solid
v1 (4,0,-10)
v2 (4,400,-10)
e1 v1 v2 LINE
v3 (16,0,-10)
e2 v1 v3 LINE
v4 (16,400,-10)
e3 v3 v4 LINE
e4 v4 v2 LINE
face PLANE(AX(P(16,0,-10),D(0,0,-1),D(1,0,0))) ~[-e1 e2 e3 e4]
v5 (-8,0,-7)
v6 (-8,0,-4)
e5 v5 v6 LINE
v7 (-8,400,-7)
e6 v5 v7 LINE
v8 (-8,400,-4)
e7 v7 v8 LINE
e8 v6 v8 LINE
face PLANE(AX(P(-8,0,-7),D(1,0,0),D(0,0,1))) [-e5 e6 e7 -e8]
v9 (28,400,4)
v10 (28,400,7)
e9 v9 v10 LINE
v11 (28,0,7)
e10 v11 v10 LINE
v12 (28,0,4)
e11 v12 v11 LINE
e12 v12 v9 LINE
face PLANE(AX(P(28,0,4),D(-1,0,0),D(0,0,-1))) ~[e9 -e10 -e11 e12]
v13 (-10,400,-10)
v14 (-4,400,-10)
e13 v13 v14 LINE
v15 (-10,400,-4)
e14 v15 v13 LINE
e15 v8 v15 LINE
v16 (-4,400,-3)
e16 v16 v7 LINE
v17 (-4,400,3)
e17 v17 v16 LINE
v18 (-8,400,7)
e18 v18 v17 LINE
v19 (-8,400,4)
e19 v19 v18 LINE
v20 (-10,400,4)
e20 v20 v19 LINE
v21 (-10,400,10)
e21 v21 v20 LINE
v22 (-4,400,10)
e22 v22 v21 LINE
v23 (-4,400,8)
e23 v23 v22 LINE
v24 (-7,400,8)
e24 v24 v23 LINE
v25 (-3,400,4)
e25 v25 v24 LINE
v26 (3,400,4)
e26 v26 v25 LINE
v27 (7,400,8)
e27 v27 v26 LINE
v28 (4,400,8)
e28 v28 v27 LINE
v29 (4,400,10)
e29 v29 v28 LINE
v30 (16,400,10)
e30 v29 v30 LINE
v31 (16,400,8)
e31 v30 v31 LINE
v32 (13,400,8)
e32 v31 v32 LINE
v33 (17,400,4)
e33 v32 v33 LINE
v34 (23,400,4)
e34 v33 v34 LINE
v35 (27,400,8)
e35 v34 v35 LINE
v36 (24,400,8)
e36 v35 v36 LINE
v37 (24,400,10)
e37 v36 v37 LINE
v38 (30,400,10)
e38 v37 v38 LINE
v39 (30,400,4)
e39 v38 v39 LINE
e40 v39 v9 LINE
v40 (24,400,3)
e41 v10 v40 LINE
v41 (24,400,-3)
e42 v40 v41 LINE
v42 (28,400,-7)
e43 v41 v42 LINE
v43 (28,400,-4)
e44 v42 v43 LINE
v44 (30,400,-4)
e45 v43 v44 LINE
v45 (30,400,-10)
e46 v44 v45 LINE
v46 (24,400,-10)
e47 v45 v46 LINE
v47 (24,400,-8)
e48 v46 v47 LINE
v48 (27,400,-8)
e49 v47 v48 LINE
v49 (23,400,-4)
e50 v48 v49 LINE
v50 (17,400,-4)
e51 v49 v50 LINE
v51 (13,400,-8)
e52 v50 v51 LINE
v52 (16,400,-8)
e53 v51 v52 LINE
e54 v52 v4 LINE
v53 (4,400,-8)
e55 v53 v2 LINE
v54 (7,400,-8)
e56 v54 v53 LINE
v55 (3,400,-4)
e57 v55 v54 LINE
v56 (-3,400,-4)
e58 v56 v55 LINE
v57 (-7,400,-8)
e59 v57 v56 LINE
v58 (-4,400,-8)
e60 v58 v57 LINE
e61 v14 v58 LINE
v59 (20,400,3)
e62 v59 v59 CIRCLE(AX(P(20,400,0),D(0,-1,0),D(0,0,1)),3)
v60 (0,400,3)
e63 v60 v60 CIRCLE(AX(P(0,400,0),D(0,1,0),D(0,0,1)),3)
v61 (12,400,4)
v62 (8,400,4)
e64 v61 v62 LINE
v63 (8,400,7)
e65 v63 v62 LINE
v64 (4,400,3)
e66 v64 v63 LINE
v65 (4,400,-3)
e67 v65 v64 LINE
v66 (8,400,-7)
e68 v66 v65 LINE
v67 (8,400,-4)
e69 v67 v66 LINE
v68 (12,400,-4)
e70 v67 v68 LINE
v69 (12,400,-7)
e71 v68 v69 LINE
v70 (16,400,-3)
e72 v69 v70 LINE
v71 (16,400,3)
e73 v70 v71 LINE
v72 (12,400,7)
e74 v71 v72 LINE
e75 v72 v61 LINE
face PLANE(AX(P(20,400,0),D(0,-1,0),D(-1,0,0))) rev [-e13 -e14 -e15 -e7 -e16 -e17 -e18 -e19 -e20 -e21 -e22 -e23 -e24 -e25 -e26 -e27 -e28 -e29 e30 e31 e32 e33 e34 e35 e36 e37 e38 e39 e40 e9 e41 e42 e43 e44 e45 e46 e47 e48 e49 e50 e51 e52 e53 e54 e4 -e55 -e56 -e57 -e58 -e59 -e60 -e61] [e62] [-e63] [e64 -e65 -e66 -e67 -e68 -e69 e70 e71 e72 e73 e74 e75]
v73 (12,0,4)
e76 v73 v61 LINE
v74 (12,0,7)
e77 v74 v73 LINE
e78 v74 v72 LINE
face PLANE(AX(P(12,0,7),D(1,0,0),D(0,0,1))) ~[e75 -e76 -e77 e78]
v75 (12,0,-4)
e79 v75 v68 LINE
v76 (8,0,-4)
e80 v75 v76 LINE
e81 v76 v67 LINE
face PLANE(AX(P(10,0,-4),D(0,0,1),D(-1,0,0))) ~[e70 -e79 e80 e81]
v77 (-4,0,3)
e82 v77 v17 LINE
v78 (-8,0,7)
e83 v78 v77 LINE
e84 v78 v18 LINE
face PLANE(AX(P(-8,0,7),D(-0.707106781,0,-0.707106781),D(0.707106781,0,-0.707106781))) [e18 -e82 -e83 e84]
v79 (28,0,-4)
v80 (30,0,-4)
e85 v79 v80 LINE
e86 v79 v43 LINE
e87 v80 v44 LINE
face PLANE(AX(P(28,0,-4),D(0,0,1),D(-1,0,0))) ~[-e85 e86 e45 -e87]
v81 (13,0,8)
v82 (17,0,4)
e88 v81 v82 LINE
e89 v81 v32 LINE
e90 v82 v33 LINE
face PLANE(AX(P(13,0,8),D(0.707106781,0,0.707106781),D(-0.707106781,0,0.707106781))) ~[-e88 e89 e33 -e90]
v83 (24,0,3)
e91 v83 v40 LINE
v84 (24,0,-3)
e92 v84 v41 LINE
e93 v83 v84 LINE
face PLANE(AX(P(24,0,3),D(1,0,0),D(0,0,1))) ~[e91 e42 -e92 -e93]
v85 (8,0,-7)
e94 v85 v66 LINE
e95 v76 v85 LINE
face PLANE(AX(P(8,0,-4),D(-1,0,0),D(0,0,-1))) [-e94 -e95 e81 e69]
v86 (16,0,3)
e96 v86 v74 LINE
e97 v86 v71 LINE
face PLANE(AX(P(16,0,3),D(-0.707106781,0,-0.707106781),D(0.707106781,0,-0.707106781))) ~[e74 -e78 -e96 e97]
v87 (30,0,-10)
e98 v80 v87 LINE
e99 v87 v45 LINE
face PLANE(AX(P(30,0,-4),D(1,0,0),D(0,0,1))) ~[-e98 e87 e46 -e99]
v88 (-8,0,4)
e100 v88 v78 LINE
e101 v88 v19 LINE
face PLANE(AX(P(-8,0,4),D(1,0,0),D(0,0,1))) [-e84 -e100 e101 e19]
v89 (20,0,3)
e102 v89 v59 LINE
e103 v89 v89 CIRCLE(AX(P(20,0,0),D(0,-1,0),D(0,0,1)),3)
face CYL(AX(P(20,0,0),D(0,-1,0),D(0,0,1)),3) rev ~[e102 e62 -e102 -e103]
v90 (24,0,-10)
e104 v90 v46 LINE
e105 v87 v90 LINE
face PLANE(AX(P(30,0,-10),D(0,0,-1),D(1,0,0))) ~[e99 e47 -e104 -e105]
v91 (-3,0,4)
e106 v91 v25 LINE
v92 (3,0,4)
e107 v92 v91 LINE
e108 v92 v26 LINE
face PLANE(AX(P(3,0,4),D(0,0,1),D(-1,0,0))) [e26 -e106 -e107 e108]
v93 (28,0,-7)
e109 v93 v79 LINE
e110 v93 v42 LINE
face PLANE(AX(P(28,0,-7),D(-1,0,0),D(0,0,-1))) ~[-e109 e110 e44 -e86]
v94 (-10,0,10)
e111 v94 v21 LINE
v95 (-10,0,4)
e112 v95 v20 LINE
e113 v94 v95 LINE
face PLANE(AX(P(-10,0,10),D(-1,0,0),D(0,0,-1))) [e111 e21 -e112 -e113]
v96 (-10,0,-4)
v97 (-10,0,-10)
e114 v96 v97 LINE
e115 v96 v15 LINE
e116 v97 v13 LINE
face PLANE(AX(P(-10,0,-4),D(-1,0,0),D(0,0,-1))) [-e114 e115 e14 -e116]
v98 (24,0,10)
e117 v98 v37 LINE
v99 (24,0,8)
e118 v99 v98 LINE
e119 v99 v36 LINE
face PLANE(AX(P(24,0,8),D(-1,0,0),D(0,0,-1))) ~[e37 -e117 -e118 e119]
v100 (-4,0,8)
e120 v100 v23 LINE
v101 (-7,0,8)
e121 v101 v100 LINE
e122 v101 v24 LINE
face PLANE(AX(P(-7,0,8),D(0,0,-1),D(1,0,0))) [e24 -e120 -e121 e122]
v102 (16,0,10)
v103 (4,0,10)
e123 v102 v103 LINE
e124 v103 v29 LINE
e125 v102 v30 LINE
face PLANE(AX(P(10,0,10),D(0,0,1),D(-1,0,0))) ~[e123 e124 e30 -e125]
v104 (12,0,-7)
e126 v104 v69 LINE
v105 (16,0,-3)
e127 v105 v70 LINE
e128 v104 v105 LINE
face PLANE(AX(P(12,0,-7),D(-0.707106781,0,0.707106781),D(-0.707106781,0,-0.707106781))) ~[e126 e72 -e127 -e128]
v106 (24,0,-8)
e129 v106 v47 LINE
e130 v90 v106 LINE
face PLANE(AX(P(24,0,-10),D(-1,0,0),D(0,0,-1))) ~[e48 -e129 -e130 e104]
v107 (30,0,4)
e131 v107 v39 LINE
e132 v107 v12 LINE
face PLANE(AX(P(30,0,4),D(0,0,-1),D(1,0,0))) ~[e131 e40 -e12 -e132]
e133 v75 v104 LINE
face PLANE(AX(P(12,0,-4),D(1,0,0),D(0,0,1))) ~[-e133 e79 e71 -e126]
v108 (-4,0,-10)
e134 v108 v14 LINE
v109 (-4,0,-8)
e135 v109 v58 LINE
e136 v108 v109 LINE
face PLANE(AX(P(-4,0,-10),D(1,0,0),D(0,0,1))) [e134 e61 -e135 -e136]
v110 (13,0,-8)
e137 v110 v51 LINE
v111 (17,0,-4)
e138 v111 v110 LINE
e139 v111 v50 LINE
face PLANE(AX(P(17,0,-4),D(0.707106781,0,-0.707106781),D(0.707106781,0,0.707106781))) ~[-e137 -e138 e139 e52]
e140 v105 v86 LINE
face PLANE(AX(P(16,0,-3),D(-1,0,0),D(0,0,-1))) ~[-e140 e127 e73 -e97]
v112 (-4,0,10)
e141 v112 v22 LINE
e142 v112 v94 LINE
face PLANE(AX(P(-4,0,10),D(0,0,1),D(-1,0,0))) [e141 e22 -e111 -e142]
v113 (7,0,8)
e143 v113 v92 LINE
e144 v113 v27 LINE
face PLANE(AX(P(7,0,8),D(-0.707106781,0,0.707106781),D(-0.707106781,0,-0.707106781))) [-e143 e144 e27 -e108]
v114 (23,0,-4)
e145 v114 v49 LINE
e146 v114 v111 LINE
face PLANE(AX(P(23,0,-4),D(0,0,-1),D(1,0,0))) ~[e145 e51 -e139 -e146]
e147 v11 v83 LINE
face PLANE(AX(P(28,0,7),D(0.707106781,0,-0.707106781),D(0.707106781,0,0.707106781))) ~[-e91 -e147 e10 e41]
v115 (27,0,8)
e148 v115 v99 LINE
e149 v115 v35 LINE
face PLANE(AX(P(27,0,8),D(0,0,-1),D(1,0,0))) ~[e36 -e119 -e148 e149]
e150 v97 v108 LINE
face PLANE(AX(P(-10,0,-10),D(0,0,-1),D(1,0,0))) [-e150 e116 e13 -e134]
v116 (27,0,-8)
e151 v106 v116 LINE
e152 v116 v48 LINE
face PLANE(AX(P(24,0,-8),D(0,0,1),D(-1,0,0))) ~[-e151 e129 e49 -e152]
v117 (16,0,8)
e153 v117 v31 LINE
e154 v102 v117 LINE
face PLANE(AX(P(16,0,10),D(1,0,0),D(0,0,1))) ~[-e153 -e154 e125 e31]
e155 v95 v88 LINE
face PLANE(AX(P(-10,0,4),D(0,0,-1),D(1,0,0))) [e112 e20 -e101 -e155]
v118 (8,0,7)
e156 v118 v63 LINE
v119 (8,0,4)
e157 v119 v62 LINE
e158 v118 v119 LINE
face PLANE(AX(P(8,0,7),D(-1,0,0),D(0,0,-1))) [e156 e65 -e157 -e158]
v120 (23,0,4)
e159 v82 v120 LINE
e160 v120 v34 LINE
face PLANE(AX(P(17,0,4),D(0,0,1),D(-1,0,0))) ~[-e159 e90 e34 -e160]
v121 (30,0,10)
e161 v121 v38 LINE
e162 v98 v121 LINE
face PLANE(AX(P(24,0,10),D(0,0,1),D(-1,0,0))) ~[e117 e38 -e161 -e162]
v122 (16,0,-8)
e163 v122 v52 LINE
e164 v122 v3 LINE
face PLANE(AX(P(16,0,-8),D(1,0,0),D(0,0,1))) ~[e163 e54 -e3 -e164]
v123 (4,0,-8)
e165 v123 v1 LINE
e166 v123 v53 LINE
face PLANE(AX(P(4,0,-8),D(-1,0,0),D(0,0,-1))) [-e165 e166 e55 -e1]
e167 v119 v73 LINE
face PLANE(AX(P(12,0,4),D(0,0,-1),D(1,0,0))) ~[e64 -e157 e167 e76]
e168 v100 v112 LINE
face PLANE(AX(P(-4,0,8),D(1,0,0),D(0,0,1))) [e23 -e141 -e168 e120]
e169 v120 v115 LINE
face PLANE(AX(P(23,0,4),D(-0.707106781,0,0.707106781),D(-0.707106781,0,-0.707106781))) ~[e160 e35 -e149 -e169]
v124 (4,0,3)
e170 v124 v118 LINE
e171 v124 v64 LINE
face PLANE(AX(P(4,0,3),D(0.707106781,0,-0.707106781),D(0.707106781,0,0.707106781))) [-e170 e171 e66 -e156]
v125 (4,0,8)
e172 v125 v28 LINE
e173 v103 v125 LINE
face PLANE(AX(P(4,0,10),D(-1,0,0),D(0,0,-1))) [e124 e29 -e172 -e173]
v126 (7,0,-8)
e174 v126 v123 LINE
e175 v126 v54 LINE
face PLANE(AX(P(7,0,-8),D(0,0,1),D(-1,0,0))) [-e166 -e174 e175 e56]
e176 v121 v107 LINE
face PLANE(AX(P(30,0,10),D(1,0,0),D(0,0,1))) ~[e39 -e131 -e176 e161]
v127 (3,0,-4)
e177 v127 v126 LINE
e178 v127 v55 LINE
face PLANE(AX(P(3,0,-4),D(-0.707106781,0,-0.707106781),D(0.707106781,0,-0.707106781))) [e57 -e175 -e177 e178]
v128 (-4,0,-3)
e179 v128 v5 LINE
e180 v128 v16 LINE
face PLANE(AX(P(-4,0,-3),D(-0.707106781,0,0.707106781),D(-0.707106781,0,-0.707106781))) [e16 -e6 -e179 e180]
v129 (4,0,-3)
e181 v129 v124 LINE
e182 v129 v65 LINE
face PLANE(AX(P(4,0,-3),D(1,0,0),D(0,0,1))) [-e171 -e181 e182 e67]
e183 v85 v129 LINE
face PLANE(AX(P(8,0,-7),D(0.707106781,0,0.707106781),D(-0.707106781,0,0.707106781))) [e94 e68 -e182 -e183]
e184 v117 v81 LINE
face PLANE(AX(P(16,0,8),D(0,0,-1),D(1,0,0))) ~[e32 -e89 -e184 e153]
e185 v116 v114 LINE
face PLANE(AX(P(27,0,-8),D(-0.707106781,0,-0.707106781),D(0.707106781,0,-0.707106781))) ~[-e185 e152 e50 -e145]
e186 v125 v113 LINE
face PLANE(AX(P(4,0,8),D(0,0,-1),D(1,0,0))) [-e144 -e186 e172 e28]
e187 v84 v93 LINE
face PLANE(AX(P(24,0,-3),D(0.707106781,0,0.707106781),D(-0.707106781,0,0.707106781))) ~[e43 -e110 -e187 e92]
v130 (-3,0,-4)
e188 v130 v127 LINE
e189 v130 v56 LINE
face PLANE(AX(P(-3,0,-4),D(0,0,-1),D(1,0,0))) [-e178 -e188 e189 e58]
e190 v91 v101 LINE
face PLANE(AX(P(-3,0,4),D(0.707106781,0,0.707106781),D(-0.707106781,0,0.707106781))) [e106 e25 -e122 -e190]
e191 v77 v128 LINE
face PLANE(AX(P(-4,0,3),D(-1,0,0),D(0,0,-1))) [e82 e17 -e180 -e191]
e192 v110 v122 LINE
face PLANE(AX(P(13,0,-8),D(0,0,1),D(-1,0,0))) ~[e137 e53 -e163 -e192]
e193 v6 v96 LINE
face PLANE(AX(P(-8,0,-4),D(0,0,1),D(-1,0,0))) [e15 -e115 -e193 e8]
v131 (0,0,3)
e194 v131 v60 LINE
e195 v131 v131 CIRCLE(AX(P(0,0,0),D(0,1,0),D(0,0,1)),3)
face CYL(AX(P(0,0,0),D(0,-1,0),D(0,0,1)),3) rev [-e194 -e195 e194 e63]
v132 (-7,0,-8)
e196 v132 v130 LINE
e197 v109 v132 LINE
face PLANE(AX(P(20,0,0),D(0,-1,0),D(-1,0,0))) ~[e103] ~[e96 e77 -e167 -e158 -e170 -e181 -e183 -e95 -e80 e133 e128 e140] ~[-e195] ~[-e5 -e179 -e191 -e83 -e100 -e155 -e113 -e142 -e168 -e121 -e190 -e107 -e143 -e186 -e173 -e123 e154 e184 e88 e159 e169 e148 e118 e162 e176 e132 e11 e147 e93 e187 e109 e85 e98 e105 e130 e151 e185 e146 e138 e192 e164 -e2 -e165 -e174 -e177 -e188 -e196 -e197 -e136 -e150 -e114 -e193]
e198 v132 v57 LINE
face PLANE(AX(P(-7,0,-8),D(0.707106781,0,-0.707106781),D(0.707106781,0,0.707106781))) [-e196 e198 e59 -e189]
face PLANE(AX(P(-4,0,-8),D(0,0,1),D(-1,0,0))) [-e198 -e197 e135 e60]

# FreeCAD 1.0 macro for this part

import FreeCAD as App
import Part
import Sketcher
from FreeCAD import Vector

doc = App.newDocument("Part")
body = doc.addObject("PartDesign::Body", "Body")

sketch1 = body.newObject("Sketcher::SketchObject", "Sketch")
sketch1.AttachmentSupport = (doc.getObject("XZ_Plane"), [""])
sketch1.MapMode = "FlatFace"
sketch1.addGeometry(Part.LineSegment(Vector(-4, -8, 0), Vector(-4, -10, 0)), False)
sketch1.addGeometry(Part.LineSegment(Vector(-4, -10, 0), Vector(-10, -10, 0)), False)
sketch1.addGeometry(Part.LineSegment(Vector(-10, -10, 0), Vector(-10, -4, 0)), False)
sketch1.addGeometry(Part.LineSegment(Vector(-10, -4, 0), Vector(-8, -4, 0)), False)
sketch1.addGeometry(Part.LineSegment(Vector(-8, -4, 0), Vector(-8, -7, 0)), False)
sketch1.addGeometry(Part.LineSegment(Vector(-8, -7, 0), Vector(-4, -3, 0)), False)
sketch1.addGeometry(Part.LineSegment(Vector(-4, -3, 0), Vector(-4, 3, 0)), False)
sketch1.addGeometry(Part.LineSegment(Vector(-4, 3, 0), Vector(-8, 7, 0)), False)
sketch1.addGeometry(Part.LineSegment(Vector(-8, 7, 0), Vector(-8, 4, 0)), False)
sketch1.addGeometry(Part.LineSegment(Vector(-8, 4, 0), Vector(-10, 4, 0)), False)
sketch1.addGeometry(Part.LineSegment(Vector(-10, 4, 0), Vector(-10, 10, 0)), False)
sketch1.addGeometry(Part.LineSegment(Vector(-10, 10, 0), Vector(-4, 10, 0)), False)
sketch1.addGeometry(Part.LineSegment(Vector(-4, 10, 0), Vector(-4, 8, 0)), False)
sketch1.addGeometry(Part.LineSegment(Vector(-4, 8, 0), Vector(-7, 8, 0)), False)
sketch1.addGeometry(Part.LineSegment(Vector(-7, 8, 0), Vector(-3, 4, 0)), False)
sketch1.addGeometry(Part.LineSegment(Vector(-3, 4, 0), Vector(3, 4, 0)), False)
sketch1.addGeometry(Part.LineSegment(Vector(3, 4, 0), Vector(7, 8, 0)), False)
sketch1.addGeometry(Part.LineSegment(Vector(7, 8, 0), Vector(4, 8, 0)), False)
sketch1.addGeometry(Part.LineSegment(Vector(4, 8, 0), Vector(4, 10, 0)), False)
sketch1.addGeometry(Part.LineSegment(Vector(4, 10, 0), Vector(10, 10, 0)), False)
sketch1.addGeometry(Part.LineSegment(Vector(10, 10, 0), Vector(10, 4, 0)), False)
sketch1.addGeometry(Part.LineSegment(Vector(10, 4, 0), Vector(8, 4, 0)), False)
sketch1.addGeometry(Part.LineSegment(Vector(8, 4, 0), Vector(8, 7, 0)), False)
sketch1.addGeometry(Part.LineSegment(Vector(8, 7, 0), Vector(4, 3, 0)), False)
sketch1.addGeometry(Part.LineSegment(Vector(4, 3, 0), Vector(4, -3, 0)), False)
sketch1.addGeometry(Part.LineSegment(Vector(4, -3, 0), Vector(8, -7, 0)), False)
sketch1.addGeometry(Part.LineSegment(Vector(8, -7, 0), Vector(8, -4, 0)), False)
sketch1.addGeometry(Part.LineSegment(Vector(8, -4, 0), Vector(10, -4, 0)), False)
sketch1.addGeometry(Part.LineSegment(Vector(10, -4, 0), Vector(10, -10, 0)), False)
sketch1.addGeometry(Part.LineSegment(Vector(10, -10, 0), Vector(4, -10, 0)), False)
sketch1.addGeometry(Part.LineSegment(Vector(4, -10, 0), Vector(4, -8, 0)), False)
sketch1.addGeometry(Part.LineSegment(Vector(4, -8, 0), Vector(7, -8, 0)), False)
sketch1.addGeometry(Part.LineSegment(Vector(7, -8, 0), Vector(3, -4, 0)), False)
sketch1.addGeometry(Part.LineSegment(Vector(3, -4, 0), Vector(-3, -4, 0)), False)
sketch1.addGeometry(Part.LineSegment(Vector(-3, -4, 0), Vector(-7, -8, 0)), False)
sketch1.addGeometry(Part.LineSegment(Vector(-7, -8, 0), Vector(-4, -8, 0)), False)
sketch1.addGeometry(Part.Circle(Vector(0, 0, 0), Vector(0, 0, 1), 3), False)
sketch1.addConstraint(Sketcher.Constraint("Coincident", 0, 2, 1, 1))
sketch1.addConstraint(Sketcher.Constraint("Coincident", 1, 2, 2, 1))
sketch1.addConstraint(Sketcher.Constraint("Coincident", 2, 2, 3, 1))
sketch1.addConstraint(Sketcher.Constraint("Coincident", 3, 2, 4, 1))
sketch1.addConstraint(Sketcher.Constraint("Coincident", 4, 2, 5, 1))
sketch1.addConstraint(Sketcher.Constraint("Coincident", 5, 2, 6, 1))
sketch1.addConstraint(Sketcher.Constraint("Coincident", 6, 2, 7, 1))
sketch1.addConstraint(Sketcher.Constraint("Coincident", 7, 2, 8, 1))
sketch1.addConstraint(Sketcher.Constraint("Coincident", 8, 2, 9, 1))
sketch1.addConstraint(Sketcher.Constraint("Coincident", 9, 2, 10, 1))
sketch1.addConstraint(Sketcher.Constraint("Coincident", 10, 2, 11, 1))
sketch1.addConstraint(Sketcher.Constraint("Coincident", 11, 2, 12, 1))
sketch1.addConstraint(Sketcher.Constraint("Coincident", 12, 2, 13, 1))
sketch1.addConstraint(Sketcher.Constraint("Coincident", 13, 2, 14, 1))
sketch1.addConstraint(Sketcher.Constraint("Coincident", 14, 2, 15, 1))
sketch1.addConstraint(Sketcher.Constraint("Coincident", 15, 2, 16, 1))
sketch1.addConstraint(Sketcher.Constraint("Coincident", 16, 2, 17, 1))
sketch1.addConstraint(Sketcher.Constraint("Coincident", 17, 2, 18, 1))
sketch1.addConstraint(Sketcher.Constraint("Coincident", 18, 2, 19, 1))
sketch1.addConstraint(Sketcher.Constraint("Coincident", 19, 2, 20, 1))
sketch1.addConstraint(Sketcher.Constraint("Coincident", 20, 2, 21, 1))
sketch1.addConstraint(Sketcher.Constraint("Coincident", 21, 2, 22, 1))
sketch1.addConstraint(Sketcher.Constraint("Coincident", 22, 2, 23, 1))
sketch1.addConstraint(Sketcher.Constraint("Coincident", 23, 2, 24, 1))
sketch1.addConstraint(Sketcher.Constraint("Coincident", 24, 2, 25, 1))
sketch1.addConstraint(Sketcher.Constraint("Coincident", 25, 2, 26, 1))
sketch1.addConstraint(Sketcher.Constraint("Coincident", 26, 2, 27, 1))
sketch1.addConstraint(Sketcher.Constraint("Coincident", 27, 2, 28, 1))
sketch1.addConstraint(Sketcher.Constraint("Coincident", 28, 2, 29, 1))
sketch1.addConstraint(Sketcher.Constraint("Coincident", 29, 2, 30, 1))
sketch1.addConstraint(Sketcher.Constraint("Coincident", 30, 2, 31, 1))
sketch1.addConstraint(Sketcher.Constraint("Coincident", 31, 2, 32, 1))
sketch1.addConstraint(Sketcher.Constraint("Coincident", 32, 2, 33, 1))
sketch1.addConstraint(Sketcher.Constraint("Coincident", 33, 2, 34, 1))
sketch1.addConstraint(Sketcher.Constraint("Coincident", 34, 2, 35, 1))
sketch1.addConstraint(Sketcher.Constraint("Coincident", 35, 2, 0, 1))
sketch1.addConstraint(Sketcher.Constraint("Vertical", 0))
sketch1.addConstraint(Sketcher.Constraint("Horizontal", 1))
sketch1.addConstraint(Sketcher.Constraint("Vertical", 2))
sketch1.addConstraint(Sketcher.Constraint("Horizontal", 3))
sketch1.addConstraint(Sketcher.Constraint("Vertical", 4))
sketch1.addConstraint(Sketcher.Constraint("Vertical", 6))
sketch1.addConstraint(Sketcher.Constraint("Vertical", 8))
sketch1.addConstraint(Sketcher.Constraint("Horizontal", 9))
sketch1.addConstraint(Sketcher.Constraint("Vertical", 10))
sketch1.addConstraint(Sketcher.Constraint("Horizontal", 11))
sketch1.addConstraint(Sketcher.Constraint("Vertical", 12))
sketch1.addConstraint(Sketcher.Constraint("Horizontal", 13))
sketch1.addConstraint(Sketcher.Constraint("Horizontal", 15))
sketch1.addConstraint(Sketcher.Constraint("Horizontal", 17))
sketch1.addConstraint(Sketcher.Constraint("Vertical", 18))
sketch1.addConstraint(Sketcher.Constraint("Horizontal", 19))
sketch1.addConstraint(Sketcher.Constraint("Vertical", 20))
sketch1.addConstraint(Sketcher.Constraint("Horizontal", 21))
sketch1.addConstraint(Sketcher.Constraint("Vertical", 22))
sketch1.addConstraint(Sketcher.Constraint("Vertical", 24))
sketch1.addConstraint(Sketcher.Constraint("Vertical", 26))
sketch1.addConstraint(Sketcher.Constraint("Horizontal", 27))
sketch1.addConstraint(Sketcher.Constraint("Vertical", 28))
sketch1.addConstraint(Sketcher.Constraint("Horizontal", 29))
sketch1.addConstraint(Sketcher.Constraint("Vertical", 30))
sketch1.addConstraint(Sketcher.Constraint("Horizontal", 31))
sketch1.addConstraint(Sketcher.Constraint("Horizontal", 33))
sketch1.addConstraint(Sketcher.Constraint("Horizontal", 35))
sketch1.addConstraint(Sketcher.Constraint("Coincident", 36, 3, -1, 1))
sketch1.addConstraint(Sketcher.Constraint("Symmetric", 0, 2, 18, 2, -1, 1))
sketch1.addConstraint(Sketcher.Constraint("Symmetric", 2, 2, 20, 2, -1, 1))
sketch1.addConstraint(Sketcher.Constraint("Symmetric", 4, 2, 22, 2, -1, 1))
sketch1.addConstraint(Sketcher.Constraint("Symmetric", 5, 2, 23, 2, -1, 1))
sketch1.addConstraint(Sketcher.Constraint("Symmetric", 7, 2, 25, 2, -1, 1))
sketch1.addConstraint(Sketcher.Constraint("Symmetric", 9, 2, 27, 2, -1, 1))
sketch1.addConstraint(Sketcher.Constraint("Symmetric", 11, 2, 29, 2, -1, 1))
sketch1.addConstraint(Sketcher.Constraint("Symmetric", 13, 2, 31, 2, -1, 1))
sketch1.addConstraint(Sketcher.Constraint("Symmetric", 14, 2, 32, 2, -1, 1))
sketch1.addConstraint(Sketcher.Constraint("Symmetric", 16, 2, 34, 2, -1, 1))
sketch1.addConstraint(Sketcher.Constraint("Symmetric", 13, 2, 16, 2, -2))
sketch1.addConstraint(Sketcher.Constraint("Symmetric", 11, 2, 18, 2, -2))
sketch1.addConstraint(Sketcher.Constraint("Symmetric", 9, 2, 20, 2, -2))
sketch1.addConstraint(Sketcher.Constraint("Symmetric", 7, 2, 22, 2, -2))
sketch1.addConstraint(Sketcher.Constraint("Perpendicular", 5, 7))
sketch1.addConstraint(Sketcher.Constraint("Parallel", 7, 14))
sketch1.addConstraint(Sketcher.Constraint("Perpendicular", 14, 16))
sketch1.addConstraint(Sketcher.Constraint("Perpendicular", 23, 25))
sketch1.addConstraint(Sketcher.Constraint("Perpendicular", 32, 34))
sketch1.addConstraint(Sketcher.Constraint("Horizontal", 9, 2, 14, 2))
sketch1.addConstraint(Sketcher.Constraint("Horizontal", 6, 2, 23, 2))
sketch1.addConstraint(Sketcher.Constraint("Vertical", 0, 2, 5, 2))
sketch1.addConstraint(Sketcher.Constraint("Equal", 11, 15))
sketch1.addConstraint(Sketcher.Constraint("Equal", 27, 0))
sketch1.addConstraint(Sketcher.Constraint("Equal", 33, 2))
sketch1.addConstraint(Sketcher.Constraint("Equal", 35, 4))
sketch1.addConstraint(Sketcher.Constraint("Equal", 2, 6))
sketch1.addConstraint(Sketcher.Constraint("Diameter", 36, 6.0))
sketch1.addConstraint(Sketcher.Constraint("DistanceX", 1, 2, 1, 1, 6.0))
sketch1.addConstraint(Sketcher.Constraint("DistanceX", 3, 1, 3, 2, 2.0))
sketch1.addConstraint(Sketcher.Constraint("DistanceX", 13, 2, 13, 1, 3.0))
pad1 = body.newObject("PartDesign::Pad", "Pad")
pad1.Profile = sketch1
pad1.Length = 400
pad1.Reversed = True
doc.recompute()

datumplane = body.newObject("PartDesign::Plane", "DatumPlane")
datumplane.AttachmentSupport = (doc.getObject("YZ_Plane"), [""])
datumplane.MapMode = "FlatFace"
datumplane.AttachmentOffset = App.Placement(Vector(0, 0, 10), App.Rotation())
mirrored = body.newObject("PartDesign::Mirrored", "Mirrored")
mirrored.Originals = [pad1]
mirrored.MirrorPlane = (datumplane, [""])
body.Tip = mirrored

doc.recompute()
